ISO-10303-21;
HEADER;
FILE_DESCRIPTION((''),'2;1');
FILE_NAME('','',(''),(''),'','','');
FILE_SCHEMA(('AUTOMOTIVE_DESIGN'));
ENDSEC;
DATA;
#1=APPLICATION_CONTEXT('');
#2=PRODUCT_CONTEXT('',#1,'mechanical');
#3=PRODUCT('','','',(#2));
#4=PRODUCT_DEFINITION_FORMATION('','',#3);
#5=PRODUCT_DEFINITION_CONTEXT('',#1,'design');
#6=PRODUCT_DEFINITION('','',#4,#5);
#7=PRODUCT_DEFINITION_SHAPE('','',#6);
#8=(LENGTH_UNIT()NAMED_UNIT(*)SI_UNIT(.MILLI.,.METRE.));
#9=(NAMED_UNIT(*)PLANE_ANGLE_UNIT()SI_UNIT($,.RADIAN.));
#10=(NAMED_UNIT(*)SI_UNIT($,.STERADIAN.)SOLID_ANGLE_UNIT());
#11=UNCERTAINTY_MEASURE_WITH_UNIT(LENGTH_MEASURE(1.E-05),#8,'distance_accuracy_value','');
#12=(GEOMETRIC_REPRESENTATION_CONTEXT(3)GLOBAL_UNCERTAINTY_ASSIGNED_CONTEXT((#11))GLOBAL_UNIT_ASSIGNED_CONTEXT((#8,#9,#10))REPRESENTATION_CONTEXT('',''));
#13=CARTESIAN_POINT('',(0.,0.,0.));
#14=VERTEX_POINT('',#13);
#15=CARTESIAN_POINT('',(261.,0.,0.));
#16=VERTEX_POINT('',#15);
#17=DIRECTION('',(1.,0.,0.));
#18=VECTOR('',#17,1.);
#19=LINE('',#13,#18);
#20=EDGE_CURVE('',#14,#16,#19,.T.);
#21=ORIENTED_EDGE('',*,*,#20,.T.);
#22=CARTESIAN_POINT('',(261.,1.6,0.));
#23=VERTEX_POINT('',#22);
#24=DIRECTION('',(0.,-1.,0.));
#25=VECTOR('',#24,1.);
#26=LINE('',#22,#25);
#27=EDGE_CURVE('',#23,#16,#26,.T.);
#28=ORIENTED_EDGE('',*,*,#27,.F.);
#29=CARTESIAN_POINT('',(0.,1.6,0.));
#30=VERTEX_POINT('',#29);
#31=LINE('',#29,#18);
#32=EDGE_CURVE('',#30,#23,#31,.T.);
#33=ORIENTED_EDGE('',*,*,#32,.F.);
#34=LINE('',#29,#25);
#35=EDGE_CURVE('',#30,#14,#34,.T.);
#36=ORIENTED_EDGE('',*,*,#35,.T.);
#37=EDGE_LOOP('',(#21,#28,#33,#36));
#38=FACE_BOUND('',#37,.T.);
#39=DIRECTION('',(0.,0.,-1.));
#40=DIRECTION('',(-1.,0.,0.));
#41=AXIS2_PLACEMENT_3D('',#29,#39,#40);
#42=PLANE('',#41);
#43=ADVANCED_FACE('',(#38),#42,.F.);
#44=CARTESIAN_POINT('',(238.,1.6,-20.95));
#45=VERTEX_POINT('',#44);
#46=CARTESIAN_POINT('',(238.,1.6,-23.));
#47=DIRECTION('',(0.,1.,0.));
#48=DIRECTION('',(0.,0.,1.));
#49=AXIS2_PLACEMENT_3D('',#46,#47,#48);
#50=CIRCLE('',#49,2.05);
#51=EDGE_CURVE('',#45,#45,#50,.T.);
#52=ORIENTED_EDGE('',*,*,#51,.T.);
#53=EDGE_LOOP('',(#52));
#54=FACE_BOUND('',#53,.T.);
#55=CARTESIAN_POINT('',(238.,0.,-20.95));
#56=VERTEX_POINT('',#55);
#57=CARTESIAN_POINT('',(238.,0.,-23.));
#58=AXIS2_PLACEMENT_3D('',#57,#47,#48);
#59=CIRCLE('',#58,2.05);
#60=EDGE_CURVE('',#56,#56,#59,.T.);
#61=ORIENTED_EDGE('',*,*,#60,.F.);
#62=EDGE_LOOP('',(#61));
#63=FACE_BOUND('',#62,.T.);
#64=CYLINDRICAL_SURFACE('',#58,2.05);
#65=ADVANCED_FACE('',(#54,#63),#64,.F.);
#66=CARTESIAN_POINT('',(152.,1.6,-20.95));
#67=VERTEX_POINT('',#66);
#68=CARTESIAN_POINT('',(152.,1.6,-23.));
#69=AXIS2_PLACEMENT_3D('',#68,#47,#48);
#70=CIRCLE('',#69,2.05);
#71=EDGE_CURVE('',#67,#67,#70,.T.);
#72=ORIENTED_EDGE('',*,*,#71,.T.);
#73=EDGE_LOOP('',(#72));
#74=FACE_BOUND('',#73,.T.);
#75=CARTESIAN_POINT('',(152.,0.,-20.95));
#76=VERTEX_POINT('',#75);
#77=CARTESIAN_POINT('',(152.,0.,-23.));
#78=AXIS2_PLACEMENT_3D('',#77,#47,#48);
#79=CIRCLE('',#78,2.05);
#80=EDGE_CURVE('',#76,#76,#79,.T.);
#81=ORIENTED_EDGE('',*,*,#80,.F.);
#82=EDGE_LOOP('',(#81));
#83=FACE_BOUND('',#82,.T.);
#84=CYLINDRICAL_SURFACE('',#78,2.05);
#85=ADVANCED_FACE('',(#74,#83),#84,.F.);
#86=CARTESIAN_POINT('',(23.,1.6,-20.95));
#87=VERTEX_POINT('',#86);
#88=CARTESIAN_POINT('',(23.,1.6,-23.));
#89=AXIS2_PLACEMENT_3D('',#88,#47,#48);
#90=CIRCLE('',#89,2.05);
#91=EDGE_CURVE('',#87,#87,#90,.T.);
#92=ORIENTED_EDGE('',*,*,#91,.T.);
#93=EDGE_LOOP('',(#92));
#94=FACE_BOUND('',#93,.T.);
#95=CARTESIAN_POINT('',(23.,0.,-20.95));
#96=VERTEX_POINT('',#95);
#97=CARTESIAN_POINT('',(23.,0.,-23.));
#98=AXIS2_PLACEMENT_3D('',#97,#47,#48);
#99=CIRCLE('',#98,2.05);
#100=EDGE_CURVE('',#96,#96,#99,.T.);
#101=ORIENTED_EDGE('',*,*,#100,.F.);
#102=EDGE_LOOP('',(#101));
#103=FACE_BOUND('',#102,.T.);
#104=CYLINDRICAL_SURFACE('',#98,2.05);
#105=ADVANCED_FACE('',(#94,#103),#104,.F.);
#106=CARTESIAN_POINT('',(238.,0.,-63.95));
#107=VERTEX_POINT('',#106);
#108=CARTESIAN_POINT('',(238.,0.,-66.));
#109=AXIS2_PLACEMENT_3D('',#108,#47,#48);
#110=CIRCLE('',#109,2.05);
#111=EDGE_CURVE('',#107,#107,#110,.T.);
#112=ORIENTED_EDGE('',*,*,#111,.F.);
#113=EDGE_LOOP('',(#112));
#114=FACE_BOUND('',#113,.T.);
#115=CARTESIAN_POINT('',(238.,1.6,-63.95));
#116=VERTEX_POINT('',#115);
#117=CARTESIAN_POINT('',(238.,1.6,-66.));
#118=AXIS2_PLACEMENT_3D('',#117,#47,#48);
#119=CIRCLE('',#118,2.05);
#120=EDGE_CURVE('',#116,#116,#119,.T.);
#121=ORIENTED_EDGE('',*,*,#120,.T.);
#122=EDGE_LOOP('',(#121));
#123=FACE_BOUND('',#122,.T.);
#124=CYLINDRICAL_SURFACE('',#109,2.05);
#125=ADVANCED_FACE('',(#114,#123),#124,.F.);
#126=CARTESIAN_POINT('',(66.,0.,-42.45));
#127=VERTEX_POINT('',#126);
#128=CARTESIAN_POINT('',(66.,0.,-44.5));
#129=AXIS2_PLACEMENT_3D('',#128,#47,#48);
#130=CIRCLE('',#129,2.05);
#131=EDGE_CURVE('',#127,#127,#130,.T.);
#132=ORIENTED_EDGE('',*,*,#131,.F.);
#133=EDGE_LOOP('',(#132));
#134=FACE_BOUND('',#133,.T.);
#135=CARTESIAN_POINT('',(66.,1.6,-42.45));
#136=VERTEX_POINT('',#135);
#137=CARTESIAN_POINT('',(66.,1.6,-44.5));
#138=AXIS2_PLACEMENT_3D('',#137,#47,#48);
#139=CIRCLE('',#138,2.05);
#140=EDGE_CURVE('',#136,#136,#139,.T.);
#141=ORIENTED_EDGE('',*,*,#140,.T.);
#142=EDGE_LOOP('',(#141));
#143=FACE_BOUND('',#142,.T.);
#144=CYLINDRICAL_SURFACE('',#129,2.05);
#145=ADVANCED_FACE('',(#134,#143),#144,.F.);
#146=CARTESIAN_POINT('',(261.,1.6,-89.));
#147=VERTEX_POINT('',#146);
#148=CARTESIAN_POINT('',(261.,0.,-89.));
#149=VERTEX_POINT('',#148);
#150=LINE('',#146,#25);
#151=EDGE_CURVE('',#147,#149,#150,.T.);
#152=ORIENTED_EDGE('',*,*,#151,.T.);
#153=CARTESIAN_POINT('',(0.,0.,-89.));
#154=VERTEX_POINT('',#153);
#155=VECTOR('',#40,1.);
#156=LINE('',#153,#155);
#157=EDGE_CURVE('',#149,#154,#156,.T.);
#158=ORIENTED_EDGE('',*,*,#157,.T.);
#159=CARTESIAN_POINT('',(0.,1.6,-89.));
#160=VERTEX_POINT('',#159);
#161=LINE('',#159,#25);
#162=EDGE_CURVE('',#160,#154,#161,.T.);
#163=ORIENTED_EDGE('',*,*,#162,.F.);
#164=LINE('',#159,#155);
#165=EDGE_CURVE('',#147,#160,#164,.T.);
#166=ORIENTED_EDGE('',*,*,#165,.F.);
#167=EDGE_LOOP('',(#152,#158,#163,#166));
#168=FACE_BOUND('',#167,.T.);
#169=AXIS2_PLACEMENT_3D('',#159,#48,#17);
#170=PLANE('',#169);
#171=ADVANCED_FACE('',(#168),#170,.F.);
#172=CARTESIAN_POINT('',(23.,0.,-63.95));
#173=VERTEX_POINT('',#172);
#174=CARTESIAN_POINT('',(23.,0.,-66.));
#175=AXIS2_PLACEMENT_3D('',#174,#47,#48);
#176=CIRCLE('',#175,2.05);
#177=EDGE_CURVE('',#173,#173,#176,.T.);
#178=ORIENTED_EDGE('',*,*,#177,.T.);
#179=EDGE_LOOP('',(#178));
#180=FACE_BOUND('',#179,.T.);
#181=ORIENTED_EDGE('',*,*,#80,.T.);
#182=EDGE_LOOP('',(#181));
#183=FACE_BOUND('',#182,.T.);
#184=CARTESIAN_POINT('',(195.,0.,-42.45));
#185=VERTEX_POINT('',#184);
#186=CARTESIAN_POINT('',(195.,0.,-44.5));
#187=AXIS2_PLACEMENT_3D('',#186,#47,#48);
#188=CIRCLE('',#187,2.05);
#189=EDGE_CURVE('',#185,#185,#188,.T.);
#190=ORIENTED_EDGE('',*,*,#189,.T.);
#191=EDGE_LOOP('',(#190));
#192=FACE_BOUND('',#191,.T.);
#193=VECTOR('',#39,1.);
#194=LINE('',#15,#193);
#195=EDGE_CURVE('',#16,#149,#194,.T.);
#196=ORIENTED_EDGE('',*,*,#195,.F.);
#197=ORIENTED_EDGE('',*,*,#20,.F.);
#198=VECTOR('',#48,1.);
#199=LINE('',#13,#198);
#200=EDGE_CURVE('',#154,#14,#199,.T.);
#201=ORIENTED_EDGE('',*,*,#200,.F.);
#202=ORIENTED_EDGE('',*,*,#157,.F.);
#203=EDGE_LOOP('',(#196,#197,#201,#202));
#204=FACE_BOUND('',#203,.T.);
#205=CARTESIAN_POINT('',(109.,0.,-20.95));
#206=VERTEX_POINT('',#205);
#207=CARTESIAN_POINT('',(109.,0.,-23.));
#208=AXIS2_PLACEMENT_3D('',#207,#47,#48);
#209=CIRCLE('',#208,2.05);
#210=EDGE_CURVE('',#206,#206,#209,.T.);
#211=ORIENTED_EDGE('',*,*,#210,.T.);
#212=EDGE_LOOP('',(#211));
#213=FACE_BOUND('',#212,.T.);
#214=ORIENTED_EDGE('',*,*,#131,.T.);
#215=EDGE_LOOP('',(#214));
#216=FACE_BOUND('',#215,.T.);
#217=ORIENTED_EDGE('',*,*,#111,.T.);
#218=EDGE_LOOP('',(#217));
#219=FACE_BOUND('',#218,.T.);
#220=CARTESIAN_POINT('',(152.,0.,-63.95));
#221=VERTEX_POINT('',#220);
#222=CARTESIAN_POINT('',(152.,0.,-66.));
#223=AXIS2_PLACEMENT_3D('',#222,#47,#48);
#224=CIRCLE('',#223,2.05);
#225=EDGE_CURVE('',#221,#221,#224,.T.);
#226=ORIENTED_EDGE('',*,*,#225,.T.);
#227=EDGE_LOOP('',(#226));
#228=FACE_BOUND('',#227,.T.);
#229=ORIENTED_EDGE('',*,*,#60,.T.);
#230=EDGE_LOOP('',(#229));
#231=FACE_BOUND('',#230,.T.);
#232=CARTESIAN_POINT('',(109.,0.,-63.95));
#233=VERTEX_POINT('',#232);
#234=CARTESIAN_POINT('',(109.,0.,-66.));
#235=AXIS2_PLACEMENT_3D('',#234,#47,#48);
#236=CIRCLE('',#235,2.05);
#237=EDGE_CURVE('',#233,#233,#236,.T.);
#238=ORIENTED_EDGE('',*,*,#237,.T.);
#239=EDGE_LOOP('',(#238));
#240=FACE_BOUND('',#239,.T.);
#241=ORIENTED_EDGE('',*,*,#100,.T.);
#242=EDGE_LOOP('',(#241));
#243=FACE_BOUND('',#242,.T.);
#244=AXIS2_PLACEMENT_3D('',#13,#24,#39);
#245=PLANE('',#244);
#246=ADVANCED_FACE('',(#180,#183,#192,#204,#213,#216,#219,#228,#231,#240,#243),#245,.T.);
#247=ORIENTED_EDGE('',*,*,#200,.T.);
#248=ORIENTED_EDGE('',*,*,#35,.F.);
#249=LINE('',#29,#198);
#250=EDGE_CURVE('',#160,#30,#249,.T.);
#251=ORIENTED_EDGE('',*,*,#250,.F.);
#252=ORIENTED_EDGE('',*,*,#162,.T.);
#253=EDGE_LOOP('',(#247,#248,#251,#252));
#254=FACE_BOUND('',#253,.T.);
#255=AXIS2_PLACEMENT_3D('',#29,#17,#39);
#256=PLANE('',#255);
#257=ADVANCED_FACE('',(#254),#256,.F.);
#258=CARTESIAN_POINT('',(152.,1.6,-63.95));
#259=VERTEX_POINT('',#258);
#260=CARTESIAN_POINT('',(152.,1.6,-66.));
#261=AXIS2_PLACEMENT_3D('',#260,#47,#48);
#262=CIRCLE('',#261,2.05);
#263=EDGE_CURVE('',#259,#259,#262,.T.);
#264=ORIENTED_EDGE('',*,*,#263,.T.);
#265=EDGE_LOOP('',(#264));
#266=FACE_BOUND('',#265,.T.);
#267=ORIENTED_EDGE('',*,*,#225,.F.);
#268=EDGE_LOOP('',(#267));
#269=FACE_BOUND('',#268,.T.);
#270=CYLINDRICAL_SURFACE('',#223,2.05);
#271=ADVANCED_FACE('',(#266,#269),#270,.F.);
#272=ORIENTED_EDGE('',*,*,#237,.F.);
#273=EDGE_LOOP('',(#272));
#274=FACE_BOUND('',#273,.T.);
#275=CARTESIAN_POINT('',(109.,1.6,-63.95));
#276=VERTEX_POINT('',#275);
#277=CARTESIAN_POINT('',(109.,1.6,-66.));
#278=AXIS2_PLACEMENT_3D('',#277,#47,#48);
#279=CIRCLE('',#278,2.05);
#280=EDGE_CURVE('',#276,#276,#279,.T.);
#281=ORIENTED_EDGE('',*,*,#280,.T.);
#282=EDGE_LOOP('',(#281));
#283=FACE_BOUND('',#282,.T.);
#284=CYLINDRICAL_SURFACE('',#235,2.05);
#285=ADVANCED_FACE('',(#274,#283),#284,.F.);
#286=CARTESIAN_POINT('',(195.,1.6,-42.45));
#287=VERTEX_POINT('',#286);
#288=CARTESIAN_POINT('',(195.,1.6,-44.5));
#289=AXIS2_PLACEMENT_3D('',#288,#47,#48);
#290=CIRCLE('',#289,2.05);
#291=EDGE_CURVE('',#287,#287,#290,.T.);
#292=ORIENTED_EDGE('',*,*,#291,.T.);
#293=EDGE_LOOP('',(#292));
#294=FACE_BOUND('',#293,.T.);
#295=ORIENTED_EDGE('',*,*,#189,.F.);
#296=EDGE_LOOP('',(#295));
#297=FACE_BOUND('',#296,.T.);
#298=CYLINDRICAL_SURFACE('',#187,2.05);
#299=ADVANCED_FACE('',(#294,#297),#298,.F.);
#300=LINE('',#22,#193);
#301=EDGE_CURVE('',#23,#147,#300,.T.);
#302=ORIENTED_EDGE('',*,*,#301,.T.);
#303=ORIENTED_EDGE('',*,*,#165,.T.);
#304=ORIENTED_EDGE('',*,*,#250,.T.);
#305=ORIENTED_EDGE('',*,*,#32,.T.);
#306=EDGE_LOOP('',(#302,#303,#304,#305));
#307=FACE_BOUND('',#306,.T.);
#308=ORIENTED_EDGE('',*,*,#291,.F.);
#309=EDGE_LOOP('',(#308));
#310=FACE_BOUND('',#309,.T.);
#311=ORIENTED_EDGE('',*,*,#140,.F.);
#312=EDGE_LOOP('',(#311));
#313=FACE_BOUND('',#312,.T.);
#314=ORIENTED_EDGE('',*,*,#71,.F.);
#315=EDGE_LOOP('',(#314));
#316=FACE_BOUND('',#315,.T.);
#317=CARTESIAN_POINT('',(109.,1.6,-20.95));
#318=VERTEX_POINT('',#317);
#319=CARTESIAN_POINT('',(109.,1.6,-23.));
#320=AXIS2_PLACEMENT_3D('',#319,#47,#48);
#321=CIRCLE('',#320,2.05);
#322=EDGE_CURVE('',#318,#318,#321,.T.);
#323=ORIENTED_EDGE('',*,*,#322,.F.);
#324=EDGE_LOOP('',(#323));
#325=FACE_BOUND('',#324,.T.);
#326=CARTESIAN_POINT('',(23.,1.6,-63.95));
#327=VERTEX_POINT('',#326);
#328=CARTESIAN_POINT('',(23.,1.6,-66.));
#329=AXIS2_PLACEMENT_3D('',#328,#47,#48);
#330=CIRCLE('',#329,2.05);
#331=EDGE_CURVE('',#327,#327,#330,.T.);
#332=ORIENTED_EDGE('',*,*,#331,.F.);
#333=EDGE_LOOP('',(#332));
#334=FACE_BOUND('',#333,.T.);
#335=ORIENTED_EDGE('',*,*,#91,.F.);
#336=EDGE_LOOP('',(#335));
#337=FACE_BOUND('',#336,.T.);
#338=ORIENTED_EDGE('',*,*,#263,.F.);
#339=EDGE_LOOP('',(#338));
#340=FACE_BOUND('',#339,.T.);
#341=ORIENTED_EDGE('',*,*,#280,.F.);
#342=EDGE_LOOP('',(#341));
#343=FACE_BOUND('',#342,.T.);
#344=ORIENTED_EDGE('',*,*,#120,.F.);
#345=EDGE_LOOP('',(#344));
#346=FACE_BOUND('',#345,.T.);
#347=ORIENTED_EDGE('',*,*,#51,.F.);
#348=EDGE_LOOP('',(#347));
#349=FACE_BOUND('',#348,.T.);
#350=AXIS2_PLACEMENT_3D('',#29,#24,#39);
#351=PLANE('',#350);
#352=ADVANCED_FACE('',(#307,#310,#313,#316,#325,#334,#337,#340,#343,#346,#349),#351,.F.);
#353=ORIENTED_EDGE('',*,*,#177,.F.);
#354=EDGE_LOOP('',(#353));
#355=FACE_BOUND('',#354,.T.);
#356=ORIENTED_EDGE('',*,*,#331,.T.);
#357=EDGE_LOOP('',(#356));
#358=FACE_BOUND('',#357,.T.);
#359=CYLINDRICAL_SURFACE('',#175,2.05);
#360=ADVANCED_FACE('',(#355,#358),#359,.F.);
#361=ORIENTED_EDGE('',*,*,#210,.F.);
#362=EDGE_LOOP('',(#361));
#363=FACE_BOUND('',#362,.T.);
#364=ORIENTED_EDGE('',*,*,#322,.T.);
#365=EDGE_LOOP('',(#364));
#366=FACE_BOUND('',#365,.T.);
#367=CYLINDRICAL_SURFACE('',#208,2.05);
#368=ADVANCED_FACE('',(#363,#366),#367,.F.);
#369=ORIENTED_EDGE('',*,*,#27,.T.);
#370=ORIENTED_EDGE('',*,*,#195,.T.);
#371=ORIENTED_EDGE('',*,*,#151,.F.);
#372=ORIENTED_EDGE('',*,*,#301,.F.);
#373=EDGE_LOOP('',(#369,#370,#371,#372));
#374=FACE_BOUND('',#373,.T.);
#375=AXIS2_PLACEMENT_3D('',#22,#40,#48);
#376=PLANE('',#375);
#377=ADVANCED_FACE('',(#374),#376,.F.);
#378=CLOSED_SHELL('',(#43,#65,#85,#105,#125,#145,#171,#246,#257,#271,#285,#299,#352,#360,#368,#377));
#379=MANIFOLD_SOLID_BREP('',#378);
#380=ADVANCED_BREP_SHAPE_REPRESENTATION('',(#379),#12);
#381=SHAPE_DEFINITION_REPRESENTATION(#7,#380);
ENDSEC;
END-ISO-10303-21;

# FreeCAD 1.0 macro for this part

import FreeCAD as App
import Part
import Sketcher
from FreeCAD import Vector
Q = App.Units.Quantity

doc = App.newDocument("Part")
body = doc.addObject("PartDesign::Body", "Body")

# Sketch on XZ plane
sketch1 = body.newObject("Sketcher::SketchObject", "Sketch")
sketch1.AttachmentSupport = (doc.getObject("XZ_Plane"), [""])
sketch1.MapMode = "FlatFace"
sketch1.addGeometry([
    Part.LineSegment(Vector(0, -89, 0), Vector(0, 0, 0)),
    Part.LineSegment(Vector(0, 0, 0), Vector(261, 0, 0)),
    Part.LineSegment(Vector(261, 0, 0), Vector(261, -89, 0)),
    Part.LineSegment(Vector(261, -89, 0), Vector(0, -89, 0)),
], False)
sketch1.addConstraint([
    Sketcher.Constraint("Coincident", 0, 2, 1, 1),
    Sketcher.Constraint("Coincident", 1, 2, 2, 1),
    Sketcher.Constraint("Coincident", 2, 2, 3, 1),
    Sketcher.Constraint("Coincident", 3, 2, 0, 1),
    Sketcher.Constraint("Vertical", 0),
    Sketcher.Constraint("Horizontal", 1),
    Sketcher.Constraint("Vertical", 2),
    Sketcher.Constraint("Horizontal", 3),
    Sketcher.Constraint("Coincident", 0, 2, -1, 1),
    Sketcher.Constraint("DistanceX", 1, 1, 1, 2, Q("261 mm")),
    Sketcher.Constraint("DistanceY", 0, 1, 0, 2, Q("89 mm")),
])
pad1 = body.newObject("PartDesign::Pad", "Pad")
pad1.Profile = sketch1
pad1.Length = 1.6
pad1.Reversed = True

# Sketch on XZ plane
sketch2 = body.newObject("Sketcher::SketchObject", "Sketch001")
sketch2.AttachmentSupport = (doc.getObject("XZ_Plane"), [""])
sketch2.MapMode = "FlatFace"
sketch2.AttachmentOffset = App.Placement(Vector(0, 0, -1.6), App.Rotation())
sketch2.addGeometry([
    Part.Circle(Vector(23, -66, 0), Vector(0, 0, 1), 2),  # 0
    Part.Circle(Vector(23, -23, 0), Vector(0, 0, 1), 2),  # 1
    Part.Circle(Vector(66, -44.5, 0), Vector(0, 0, 1), 2),  # 2
    Part.Circle(Vector(109, -66, 0), Vector(0, 0, 1), 2),  # 3
    Part.Circle(Vector(109, -23, 0), Vector(0, 0, 1), 2),  # 4
    Part.Circle(Vector(152, -23, 0), Vector(0, 0, 1), 2),  # 5
    Part.Circle(Vector(152, -66, 0), Vector(0, 0, 1), 2),  # 6
    Part.Circle(Vector(195, -44.5, 0), Vector(0, 0, 1), 2),  # 7
    Part.Circle(Vector(238, -66, 0), Vector(0, 0, 1), 2),  # 8
    Part.Circle(Vector(238, -23, 0), Vector(0, 0, 1), 2),  # 9
], False)
sketch2.addConstraint([
    Sketcher.Constraint("Equal", 0, 1),
    Sketcher.Constraint("Equal", 1, 2),
    Sketcher.Constraint("Equal", 2, 3),
    Sketcher.Constraint("Equal", 3, 4),
    Sketcher.Constraint("Equal", 4, 5),
    Sketcher.Constraint("Equal", 5, 6),
    Sketcher.Constraint("Equal", 6, 7),
    Sketcher.Constraint("Equal", 7, 8),
    Sketcher.Constraint("Equal", 8, 9),
    Sketcher.Constraint("Horizontal", 0, 3, 3, 3),
    Sketcher.Constraint("Horizontal", 1, 3, 4, 3),
    Sketcher.Constraint("Horizontal", 4, 3, 5, 3),
    Sketcher.Constraint("Horizontal", 3, 3, 6, 3),
    Sketcher.Constraint("Horizontal", 2, 3, 7, 3),
    Sketcher.Constraint("Horizontal", 6, 3, 8, 3),
    Sketcher.Constraint("Horizontal", 5, 3, 9, 3),
    Sketcher.Constraint("Vertical", 0, 3, 1, 3),
    Sketcher.Constraint("Vertical", 3, 3, 4, 3),
    Sketcher.Constraint("Vertical", 5, 3, 6, 3),
    Sketcher.Constraint("Vertical", 8, 3, 9, 3),
    Sketcher.Constraint("Diameter", 0, Q("4.1 mm")),
    Sketcher.Constraint("DistanceX", -1, 1, 0, 3, Q("23 mm")),
    Sketcher.Constraint("DistanceY", 0, 3, -1, 1, Q("66 mm")),
    Sketcher.Constraint("DistanceY", 1, 3, -1, 1, Q("23 mm")),
    Sketcher.Constraint("DistanceX", -1, 1, 2, 3, Q("66 mm")),
    Sketcher.Constraint("DistanceX", -1, 1, 3, 3, Q("109 mm")),
    Sketcher.Constraint("DistanceX", -1, 1, 5, 3, Q("152 mm")),
    Sketcher.Constraint("DistanceX", -1, 1, 7, 3, Q("195 mm")),
    Sketcher.Constraint("DistanceX", -1, 1, 8, 3, Q("238 mm")),
    Sketcher.Constraint("DistanceY", 2, 3, -1, 1, Q("44.5 mm")),
])
pocket1 = body.newObject("PartDesign::Pocket", "Pocket")
pocket1.Profile = sketch2
pocket1.Type = "ThroughAll"
pocket1.Reversed = True

doc.recompute()
